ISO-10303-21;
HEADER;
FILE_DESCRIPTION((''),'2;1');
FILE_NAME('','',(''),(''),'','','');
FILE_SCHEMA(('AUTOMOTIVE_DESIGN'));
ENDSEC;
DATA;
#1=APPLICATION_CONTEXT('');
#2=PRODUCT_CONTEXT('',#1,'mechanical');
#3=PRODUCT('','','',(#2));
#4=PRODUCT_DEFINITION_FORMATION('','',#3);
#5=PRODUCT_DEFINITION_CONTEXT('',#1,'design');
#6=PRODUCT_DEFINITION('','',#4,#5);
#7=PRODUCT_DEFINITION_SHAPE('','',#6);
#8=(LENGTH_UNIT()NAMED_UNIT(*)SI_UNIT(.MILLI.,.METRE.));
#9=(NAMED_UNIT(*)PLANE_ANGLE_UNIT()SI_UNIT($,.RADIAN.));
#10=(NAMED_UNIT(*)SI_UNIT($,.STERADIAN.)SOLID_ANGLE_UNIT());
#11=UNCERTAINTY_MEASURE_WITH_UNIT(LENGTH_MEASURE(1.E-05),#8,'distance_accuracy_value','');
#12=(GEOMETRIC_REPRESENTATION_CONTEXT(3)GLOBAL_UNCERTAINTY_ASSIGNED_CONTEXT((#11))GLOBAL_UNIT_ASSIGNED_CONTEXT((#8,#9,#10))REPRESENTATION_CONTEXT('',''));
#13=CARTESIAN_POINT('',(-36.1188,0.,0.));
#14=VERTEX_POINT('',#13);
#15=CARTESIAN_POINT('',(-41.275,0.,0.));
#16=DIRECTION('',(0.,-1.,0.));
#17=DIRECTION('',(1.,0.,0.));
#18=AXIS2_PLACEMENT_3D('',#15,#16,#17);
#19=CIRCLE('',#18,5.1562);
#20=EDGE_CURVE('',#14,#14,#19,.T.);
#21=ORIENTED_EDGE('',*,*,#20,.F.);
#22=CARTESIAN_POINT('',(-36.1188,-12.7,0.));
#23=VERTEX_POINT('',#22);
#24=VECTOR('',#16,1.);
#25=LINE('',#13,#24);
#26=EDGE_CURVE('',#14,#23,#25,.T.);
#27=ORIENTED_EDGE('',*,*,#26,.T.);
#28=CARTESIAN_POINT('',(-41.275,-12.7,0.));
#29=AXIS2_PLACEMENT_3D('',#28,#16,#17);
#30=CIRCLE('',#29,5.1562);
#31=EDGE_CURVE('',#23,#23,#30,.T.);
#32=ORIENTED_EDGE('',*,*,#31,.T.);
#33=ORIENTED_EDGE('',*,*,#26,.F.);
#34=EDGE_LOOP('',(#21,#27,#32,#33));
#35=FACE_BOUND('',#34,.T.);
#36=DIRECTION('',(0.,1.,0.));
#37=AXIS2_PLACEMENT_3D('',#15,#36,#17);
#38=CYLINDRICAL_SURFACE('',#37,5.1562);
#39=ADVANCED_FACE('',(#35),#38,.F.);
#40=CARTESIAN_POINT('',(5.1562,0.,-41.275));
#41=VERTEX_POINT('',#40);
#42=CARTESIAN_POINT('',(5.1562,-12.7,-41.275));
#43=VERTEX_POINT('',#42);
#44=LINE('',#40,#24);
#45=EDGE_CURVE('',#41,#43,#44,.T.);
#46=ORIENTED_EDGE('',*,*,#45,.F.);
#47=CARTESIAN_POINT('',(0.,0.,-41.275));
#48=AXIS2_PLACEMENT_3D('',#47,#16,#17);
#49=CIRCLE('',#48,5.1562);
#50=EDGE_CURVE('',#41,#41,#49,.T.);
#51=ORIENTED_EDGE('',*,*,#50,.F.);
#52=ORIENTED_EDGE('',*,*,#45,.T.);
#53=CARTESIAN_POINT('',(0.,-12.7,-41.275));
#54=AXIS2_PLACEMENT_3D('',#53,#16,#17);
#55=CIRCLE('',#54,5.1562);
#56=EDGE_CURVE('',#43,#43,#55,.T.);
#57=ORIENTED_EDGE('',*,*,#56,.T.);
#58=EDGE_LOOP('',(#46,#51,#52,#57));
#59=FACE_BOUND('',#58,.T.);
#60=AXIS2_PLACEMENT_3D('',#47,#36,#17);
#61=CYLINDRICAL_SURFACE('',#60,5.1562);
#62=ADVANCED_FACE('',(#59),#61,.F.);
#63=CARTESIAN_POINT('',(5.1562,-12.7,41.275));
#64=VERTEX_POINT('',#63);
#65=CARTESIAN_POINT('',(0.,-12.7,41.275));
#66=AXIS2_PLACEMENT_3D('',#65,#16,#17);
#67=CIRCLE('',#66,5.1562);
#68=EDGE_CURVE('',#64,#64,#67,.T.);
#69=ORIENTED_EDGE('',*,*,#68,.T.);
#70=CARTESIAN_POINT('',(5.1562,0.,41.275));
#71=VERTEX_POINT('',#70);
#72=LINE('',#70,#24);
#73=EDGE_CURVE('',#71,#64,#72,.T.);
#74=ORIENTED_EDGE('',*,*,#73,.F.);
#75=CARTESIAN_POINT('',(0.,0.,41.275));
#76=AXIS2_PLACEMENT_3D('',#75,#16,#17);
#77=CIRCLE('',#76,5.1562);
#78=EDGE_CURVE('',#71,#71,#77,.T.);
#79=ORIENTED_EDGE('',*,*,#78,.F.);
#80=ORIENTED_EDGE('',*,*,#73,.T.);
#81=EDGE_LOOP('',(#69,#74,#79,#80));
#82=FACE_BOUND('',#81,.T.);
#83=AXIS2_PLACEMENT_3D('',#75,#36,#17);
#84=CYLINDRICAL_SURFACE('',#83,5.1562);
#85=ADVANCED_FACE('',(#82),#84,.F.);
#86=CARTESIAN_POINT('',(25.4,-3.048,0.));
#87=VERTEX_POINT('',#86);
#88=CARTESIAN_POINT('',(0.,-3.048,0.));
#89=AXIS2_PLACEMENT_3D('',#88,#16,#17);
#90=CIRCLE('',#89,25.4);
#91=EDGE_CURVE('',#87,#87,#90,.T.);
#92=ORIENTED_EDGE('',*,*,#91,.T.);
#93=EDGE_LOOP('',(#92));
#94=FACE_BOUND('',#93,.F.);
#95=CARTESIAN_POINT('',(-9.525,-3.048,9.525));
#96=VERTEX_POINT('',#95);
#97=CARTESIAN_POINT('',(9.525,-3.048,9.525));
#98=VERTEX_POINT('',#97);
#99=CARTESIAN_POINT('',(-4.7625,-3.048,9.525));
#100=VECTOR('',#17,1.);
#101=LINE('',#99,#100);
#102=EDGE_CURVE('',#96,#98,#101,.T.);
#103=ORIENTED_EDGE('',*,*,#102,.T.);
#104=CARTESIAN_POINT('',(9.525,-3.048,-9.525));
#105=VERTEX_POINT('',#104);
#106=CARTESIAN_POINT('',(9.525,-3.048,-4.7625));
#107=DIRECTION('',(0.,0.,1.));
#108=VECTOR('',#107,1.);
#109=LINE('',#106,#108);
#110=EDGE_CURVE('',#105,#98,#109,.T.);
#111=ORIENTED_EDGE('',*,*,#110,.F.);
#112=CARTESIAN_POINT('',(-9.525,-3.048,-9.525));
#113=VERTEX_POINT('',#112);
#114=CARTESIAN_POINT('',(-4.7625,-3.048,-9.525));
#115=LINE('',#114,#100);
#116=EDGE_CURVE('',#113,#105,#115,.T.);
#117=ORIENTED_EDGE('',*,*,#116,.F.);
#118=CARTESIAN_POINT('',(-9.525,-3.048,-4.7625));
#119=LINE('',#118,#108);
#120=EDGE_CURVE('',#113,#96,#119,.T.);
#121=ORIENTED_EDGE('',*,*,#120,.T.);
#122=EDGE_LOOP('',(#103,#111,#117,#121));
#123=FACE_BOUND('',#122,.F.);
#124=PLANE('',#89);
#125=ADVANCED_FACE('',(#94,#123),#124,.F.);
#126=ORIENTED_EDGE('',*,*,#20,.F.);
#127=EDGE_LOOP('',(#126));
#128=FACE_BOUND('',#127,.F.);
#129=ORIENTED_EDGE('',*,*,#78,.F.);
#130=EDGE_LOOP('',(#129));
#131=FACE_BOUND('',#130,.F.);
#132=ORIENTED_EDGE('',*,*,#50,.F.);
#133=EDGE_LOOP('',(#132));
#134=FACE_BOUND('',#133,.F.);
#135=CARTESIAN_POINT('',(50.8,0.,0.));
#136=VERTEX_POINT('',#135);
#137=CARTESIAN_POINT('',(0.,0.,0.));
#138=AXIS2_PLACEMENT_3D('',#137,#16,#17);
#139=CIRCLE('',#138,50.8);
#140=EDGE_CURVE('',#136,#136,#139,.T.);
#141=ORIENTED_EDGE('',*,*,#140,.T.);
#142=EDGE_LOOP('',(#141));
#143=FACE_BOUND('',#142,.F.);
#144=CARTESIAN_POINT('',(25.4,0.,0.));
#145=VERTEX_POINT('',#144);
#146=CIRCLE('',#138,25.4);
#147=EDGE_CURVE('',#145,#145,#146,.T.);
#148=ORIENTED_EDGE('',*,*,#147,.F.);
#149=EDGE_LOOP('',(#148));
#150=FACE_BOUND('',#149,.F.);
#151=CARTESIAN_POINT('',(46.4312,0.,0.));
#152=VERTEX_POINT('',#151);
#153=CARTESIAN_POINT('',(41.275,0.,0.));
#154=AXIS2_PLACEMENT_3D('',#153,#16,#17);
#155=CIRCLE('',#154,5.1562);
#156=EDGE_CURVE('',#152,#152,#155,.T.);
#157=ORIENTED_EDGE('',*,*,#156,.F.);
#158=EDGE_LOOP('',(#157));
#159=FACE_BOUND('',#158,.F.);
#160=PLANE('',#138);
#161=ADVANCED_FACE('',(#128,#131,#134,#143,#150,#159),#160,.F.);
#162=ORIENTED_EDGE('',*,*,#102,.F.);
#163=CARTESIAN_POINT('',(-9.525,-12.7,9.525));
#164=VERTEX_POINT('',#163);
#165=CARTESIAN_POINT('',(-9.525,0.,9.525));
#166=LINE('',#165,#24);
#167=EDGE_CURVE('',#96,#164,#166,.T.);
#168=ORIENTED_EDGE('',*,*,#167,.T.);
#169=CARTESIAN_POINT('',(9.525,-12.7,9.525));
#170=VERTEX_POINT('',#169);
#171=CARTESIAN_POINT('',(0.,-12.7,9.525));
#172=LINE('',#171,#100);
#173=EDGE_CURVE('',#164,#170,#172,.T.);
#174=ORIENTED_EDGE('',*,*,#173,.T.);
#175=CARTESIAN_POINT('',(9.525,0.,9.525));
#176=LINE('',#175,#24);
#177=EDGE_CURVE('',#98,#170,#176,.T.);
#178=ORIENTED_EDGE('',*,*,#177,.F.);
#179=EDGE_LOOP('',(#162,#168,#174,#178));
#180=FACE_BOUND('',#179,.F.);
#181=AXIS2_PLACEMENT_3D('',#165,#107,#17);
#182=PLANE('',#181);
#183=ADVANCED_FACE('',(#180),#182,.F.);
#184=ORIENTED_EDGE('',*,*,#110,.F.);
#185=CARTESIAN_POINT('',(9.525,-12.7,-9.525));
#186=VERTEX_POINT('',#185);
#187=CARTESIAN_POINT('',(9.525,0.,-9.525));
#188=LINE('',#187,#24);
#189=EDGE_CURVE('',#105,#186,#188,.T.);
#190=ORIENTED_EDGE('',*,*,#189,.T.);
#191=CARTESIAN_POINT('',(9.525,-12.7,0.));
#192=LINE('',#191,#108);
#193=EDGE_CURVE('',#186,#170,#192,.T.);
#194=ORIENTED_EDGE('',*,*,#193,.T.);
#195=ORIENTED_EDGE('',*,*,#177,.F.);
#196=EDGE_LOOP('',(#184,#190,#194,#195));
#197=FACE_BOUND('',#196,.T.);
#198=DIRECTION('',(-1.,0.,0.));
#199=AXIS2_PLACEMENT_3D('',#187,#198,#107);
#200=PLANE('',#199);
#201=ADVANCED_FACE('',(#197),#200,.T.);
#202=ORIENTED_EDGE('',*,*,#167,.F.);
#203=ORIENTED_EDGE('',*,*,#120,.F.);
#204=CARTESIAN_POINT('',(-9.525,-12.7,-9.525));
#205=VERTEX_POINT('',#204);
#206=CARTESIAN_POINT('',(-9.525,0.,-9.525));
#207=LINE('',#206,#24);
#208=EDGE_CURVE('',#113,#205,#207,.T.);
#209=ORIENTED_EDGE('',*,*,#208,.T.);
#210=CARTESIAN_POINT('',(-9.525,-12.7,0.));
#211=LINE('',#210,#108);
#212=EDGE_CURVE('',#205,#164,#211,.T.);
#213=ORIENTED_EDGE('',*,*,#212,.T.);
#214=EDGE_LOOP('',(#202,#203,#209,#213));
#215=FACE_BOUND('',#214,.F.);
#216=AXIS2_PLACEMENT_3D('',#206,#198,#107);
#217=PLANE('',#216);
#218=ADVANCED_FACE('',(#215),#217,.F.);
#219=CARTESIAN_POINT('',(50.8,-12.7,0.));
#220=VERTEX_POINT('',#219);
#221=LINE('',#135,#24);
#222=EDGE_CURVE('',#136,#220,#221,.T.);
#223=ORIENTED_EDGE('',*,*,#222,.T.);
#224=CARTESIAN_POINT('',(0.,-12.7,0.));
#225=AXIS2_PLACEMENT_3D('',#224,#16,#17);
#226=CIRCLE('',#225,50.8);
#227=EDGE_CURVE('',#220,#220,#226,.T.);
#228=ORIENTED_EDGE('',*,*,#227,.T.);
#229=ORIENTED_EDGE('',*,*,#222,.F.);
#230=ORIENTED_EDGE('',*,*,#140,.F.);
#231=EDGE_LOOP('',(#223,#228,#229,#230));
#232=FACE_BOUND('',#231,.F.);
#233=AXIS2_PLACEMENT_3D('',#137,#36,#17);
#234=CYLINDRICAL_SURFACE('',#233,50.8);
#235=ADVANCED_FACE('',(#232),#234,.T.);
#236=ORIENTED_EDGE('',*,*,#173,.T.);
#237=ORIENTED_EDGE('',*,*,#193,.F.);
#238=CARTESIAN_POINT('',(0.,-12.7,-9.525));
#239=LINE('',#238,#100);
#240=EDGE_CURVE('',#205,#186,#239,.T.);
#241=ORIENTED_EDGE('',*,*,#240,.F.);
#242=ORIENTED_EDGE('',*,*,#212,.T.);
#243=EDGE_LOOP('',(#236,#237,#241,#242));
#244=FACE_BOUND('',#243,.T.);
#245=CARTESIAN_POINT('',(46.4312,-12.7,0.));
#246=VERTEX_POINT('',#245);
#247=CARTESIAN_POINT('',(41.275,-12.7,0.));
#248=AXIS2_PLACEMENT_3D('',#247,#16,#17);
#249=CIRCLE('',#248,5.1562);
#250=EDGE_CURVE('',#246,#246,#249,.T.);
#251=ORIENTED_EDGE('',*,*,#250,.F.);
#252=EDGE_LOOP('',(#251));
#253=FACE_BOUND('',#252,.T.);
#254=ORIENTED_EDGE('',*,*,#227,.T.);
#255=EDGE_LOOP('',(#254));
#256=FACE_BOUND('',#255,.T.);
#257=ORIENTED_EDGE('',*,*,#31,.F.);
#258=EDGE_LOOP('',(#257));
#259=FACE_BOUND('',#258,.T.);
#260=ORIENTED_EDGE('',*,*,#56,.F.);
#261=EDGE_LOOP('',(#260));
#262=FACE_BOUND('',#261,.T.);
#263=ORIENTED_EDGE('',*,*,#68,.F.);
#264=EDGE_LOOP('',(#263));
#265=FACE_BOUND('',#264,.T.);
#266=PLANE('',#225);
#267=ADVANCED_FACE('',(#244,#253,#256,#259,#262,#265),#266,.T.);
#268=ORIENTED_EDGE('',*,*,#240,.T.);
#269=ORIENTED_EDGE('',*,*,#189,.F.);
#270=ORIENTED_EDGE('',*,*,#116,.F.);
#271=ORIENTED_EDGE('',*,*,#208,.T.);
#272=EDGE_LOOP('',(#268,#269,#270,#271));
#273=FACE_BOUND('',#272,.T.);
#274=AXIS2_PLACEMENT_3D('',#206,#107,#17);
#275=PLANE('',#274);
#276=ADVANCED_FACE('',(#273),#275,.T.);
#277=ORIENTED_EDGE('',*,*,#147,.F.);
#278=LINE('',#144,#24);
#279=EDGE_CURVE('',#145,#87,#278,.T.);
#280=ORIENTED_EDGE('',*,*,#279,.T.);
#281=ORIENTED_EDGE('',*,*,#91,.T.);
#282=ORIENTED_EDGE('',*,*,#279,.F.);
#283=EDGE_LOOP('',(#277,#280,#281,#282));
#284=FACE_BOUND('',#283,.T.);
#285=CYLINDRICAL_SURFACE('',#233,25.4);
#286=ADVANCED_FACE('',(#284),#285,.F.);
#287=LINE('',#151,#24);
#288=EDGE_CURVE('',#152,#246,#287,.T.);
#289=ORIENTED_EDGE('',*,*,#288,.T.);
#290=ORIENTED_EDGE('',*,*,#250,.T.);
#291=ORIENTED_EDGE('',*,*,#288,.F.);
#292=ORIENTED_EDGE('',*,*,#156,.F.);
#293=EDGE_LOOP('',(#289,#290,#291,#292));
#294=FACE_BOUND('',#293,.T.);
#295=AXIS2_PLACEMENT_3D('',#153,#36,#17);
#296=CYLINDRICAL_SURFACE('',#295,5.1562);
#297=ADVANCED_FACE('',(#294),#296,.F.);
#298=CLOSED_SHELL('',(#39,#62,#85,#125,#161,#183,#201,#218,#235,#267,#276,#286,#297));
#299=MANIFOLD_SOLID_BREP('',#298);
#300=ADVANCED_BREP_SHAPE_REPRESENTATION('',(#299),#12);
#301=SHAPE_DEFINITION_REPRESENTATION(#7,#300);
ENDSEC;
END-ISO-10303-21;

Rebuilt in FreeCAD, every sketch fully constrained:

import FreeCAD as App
import Part
import Sketcher

V = App.Vector
Q = App.Units.Quantity


def add_polygon(sketch, points):
    """Adds a closed chain of lines whose ends are joined by coincident constraints."""
    first, n = sketch.GeometryCount, len(points)
    for a, b in zip(points, points[1:] + points[:1]):
        sketch.addGeometry(Part.LineSegment(App.Vector(*a, 0), App.Vector(*b, 0)), False)
    for i in range(n):
        sketch.addConstraint(Sketcher.Constraint("Coincident", first + i, 2, first + (i + 1) % n, 1))

doc = App.newDocument("Part")
body = doc.addObject("PartDesign::Body", "Body")

# Sketch on XZ plane
sketch1 = body.newObject("Sketcher::SketchObject", "Sketch")
sketch1.AttachmentSupport = (doc.getObject("XZ_Plane"), [""])
sketch1.MapMode = "FlatFace"
sketch1.addGeometry(Part.Circle(V(0, 0, 0), V(0, 0, 1), 51), False)  # 0
sketch1.addGeometry(Part.Circle(V(0, -41, 0), V(0, 0, 1), 5), False)  # 1
sketch1.addGeometry(Part.Circle(V(-41, 0, 0), V(0, 0, 1), 5), False)  # 2
add_polygon(sketch1, [(10, -10), (-10, -10), (-10, 10), (10, 10)])  # lines 3-6
sketch1.addGeometry(Part.Circle(V(41, 0, 0), V(0, 0, 1), 5), False)  # 7
sketch1.addGeometry(Part.Circle(V(0, 41, 0), V(0, 0, 1), 5), False)  # 8
sketch1.addConstraint(Sketcher.Constraint("Horizontal", 3))
sketch1.addConstraint(Sketcher.Constraint("Vertical", 4))
sketch1.addConstraint(Sketcher.Constraint("Horizontal", 5))
sketch1.addConstraint(Sketcher.Constraint("Vertical", 6))
sketch1.addConstraint(Sketcher.Constraint("Coincident", 0, 3, -1, 1))
sketch1.addConstraint(Sketcher.Constraint("Equal", 1, 2))
sketch1.addConstraint(Sketcher.Constraint("Equal", 2, 7))
sketch1.addConstraint(Sketcher.Constraint("Equal", 7, 8))
sketch1.addConstraint(Sketcher.Constraint("Symmetric", 2, 3, 7, 3, -1, 1))
sketch1.addConstraint(Sketcher.Constraint("Symmetric", 1, 3, 8, 3, -1, 1))
sketch1.addConstraint(Sketcher.Constraint("Symmetric", 3, 2, 5, 2, -1, 1))
sketch1.addConstraint(Sketcher.Constraint("PointOnObject", 1, 3, -2))
sketch1.addConstraint(Sketcher.Constraint("PointOnObject", 2, 3, -1))
sketch1.addConstraint(Sketcher.Constraint("Equal", 5, 4))
sketch1.addConstraint(Sketcher.Constraint("Diameter", 0, Q("4 in")))
sketch1.addConstraint(Sketcher.Constraint("Diameter", 1, Q("0.406 in")))
sketch1.addConstraint(Sketcher.Constraint("DistanceX", 3, 2, 7, 3, Q("2 in")))
sketch1.addConstraint(Sketcher.Constraint("DistanceY", 3, 2, 8, 3, Q("2 in")))
sketch1.addConstraint(Sketcher.Constraint("DistanceX", 3, 2, 3, 1, Q("0.75 in")))
pad1 = body.newObject("PartDesign::Pad", "Pad")
pad1.Profile = sketch1
pad1.Length = Q("0.5 in")

# Sketch on XZ plane
sketch2 = body.newObject("Sketcher::SketchObject", "Sketch001")
sketch2.AttachmentSupport = (doc.getObject("XZ_Plane"), [""])
sketch2.MapMode = "FlatFace"
sketch2.addGeometry(Part.Circle(V(0, 0, 0), V(0, 0, 1), 25), False)
sketch2.addConstraint(Sketcher.Constraint("Coincident", 0, 3, -1, 1))
sketch2.addConstraint(Sketcher.Constraint("Diameter", 0, Q("2 in")))
pocket1 = body.newObject("PartDesign::Pocket", "Pocket")
pocket1.Profile = sketch2
pocket1.Length = Q("0.12 in")
pocket1.Reversed = True

doc.recompute()
